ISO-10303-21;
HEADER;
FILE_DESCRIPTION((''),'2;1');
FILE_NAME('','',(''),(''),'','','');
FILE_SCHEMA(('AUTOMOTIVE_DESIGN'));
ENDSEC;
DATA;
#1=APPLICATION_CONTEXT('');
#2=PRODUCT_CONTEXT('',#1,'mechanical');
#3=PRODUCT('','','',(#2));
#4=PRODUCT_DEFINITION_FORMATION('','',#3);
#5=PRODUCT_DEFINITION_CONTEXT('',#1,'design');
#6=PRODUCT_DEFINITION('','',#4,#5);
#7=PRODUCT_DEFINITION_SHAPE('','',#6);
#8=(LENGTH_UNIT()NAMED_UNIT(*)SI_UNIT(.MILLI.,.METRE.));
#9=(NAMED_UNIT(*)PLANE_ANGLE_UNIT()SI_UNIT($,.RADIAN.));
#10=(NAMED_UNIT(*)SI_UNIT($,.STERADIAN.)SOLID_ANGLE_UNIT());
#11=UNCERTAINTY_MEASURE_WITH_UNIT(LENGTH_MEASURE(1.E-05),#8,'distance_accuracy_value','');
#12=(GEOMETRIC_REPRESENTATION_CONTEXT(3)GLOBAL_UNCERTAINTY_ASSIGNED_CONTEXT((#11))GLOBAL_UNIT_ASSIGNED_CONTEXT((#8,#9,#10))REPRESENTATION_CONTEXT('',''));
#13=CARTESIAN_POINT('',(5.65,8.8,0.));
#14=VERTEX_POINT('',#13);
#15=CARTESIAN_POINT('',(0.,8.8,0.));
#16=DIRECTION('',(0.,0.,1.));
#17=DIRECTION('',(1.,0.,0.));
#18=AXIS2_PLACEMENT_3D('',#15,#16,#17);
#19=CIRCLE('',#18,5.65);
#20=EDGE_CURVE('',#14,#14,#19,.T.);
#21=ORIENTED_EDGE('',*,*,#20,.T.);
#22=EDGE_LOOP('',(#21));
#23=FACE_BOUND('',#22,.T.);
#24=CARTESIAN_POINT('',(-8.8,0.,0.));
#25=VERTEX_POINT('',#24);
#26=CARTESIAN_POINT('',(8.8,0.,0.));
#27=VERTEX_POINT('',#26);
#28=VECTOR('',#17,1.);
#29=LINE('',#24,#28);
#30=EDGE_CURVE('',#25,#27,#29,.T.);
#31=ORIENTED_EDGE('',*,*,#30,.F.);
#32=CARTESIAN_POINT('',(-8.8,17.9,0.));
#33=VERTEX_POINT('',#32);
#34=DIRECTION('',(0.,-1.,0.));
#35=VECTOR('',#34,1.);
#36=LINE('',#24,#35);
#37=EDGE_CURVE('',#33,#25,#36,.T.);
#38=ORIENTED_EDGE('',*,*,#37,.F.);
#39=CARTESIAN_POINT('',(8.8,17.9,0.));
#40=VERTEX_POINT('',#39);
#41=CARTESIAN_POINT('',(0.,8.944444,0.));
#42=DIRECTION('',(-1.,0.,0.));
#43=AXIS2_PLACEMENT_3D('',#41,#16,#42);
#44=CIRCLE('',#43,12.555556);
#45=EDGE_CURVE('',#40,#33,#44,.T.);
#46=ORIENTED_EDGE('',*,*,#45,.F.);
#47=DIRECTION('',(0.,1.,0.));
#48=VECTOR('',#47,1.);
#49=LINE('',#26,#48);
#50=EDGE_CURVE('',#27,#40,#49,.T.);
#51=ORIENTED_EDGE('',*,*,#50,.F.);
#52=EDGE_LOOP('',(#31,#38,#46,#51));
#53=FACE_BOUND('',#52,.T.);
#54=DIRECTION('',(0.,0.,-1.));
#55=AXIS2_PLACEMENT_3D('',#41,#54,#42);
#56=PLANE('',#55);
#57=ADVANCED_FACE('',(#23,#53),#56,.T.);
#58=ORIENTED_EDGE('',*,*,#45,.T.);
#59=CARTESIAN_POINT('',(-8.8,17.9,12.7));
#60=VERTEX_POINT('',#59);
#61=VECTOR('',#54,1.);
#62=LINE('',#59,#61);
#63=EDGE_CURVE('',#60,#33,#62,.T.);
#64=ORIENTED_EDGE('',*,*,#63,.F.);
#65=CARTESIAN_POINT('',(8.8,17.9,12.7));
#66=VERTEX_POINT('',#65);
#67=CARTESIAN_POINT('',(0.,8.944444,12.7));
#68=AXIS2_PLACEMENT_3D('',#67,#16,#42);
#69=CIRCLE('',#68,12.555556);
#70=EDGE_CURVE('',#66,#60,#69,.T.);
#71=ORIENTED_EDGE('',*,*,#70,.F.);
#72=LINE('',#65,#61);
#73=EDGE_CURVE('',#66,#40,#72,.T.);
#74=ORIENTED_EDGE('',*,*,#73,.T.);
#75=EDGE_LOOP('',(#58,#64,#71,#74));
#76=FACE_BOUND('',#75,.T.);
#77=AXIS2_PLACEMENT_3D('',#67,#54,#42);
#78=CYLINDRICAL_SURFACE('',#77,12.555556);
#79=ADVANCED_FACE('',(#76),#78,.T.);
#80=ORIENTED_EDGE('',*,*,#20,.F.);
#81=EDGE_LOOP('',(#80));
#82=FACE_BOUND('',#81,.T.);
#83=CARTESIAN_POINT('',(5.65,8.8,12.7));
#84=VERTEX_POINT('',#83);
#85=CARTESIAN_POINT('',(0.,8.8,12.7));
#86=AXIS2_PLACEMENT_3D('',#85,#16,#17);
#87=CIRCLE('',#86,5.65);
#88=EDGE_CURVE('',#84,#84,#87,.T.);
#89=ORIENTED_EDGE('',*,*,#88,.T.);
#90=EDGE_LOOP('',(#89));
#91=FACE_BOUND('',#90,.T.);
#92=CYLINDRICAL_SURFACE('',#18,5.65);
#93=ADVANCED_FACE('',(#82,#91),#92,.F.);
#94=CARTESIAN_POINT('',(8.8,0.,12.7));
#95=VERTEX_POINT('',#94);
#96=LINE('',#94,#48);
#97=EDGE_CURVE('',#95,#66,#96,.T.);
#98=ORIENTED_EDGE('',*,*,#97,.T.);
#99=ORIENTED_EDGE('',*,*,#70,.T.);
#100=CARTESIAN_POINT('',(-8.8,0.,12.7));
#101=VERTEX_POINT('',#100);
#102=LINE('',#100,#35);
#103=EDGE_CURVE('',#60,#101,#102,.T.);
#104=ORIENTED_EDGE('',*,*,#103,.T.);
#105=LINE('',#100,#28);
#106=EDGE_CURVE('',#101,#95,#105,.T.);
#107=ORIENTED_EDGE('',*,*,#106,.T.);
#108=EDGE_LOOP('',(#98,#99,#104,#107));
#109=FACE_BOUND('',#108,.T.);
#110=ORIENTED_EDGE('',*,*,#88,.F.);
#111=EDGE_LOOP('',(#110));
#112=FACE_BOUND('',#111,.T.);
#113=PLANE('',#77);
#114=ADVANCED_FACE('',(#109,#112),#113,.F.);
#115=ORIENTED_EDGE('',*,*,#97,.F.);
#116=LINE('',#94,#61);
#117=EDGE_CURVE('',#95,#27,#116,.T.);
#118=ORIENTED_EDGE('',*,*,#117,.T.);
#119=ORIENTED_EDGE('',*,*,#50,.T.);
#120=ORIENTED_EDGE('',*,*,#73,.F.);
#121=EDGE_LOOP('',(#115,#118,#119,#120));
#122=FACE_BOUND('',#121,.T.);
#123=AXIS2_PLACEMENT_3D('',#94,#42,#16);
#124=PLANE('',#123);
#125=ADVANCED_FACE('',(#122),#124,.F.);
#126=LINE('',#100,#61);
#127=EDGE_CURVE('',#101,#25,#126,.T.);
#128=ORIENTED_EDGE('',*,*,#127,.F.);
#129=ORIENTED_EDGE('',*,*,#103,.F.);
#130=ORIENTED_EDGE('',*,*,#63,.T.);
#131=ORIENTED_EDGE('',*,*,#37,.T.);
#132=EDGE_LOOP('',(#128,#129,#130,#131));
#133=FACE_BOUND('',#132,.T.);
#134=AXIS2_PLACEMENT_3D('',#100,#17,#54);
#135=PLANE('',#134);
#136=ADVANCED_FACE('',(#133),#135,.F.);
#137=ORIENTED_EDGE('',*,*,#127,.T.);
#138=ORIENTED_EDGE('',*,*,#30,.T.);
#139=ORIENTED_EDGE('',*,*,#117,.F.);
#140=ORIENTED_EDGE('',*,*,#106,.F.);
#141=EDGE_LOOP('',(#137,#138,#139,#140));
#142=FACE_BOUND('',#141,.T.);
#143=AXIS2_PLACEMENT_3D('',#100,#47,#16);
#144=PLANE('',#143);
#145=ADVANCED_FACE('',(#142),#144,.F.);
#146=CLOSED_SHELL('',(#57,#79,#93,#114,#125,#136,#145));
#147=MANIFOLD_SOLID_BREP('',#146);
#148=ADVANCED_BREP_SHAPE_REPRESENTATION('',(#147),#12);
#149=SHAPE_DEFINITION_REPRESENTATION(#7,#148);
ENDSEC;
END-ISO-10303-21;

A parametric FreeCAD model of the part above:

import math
import FreeCAD as App
import Part
import Sketcher
from FreeCAD import Vector

doc = App.newDocument("Part")
body = doc.addObject("PartDesign::Body", "Body")

# Sketch on XY plane
sketch1 = body.newObject("Sketcher::SketchObject", "Sketch")
sketch1.AttachmentSupport = (doc.getObject("XY_Plane"), [""])
sketch1.MapMode = "FlatFace"
sketch1.addGeometry(Part.LineSegment(Vector(-8.8, 0, 0), Vector(8.8, 0, 0)), False)
sketch1.addGeometry(Part.LineSegment(Vector(8.8, 0, 0), Vector(8.8, 17.9, 0)), False)
sketch1.addGeometry(Part.ArcOfCircle(Part.Circle(Vector(0, 8.944444, 0), Vector(0, 0, 1), 12.555556), math.radians(45.501953), math.radians(134.498047)), False)
sketch1.addGeometry(Part.LineSegment(Vector(-8.8, 17.9, 0), Vector(-8.8, 0, 0)), False)
sketch1.addConstraint(Sketcher.Constraint("Coincident", 0, 2, 1, 1))
sketch1.addConstraint(Sketcher.Constraint("Coincident", 1, 2, 2, 1))
sketch1.addConstraint(Sketcher.Constraint("Coincident", 2, 2, 3, 1))
sketch1.addConstraint(Sketcher.Constraint("Coincident", 3, 2, 0, 1))
sketch1.addConstraint(Sketcher.Constraint("Horizontal", 0))
sketch1.addConstraint(Sketcher.Constraint("Vertical", 1))
sketch1.addConstraint(Sketcher.Constraint("Vertical", 3))
sketch1.addConstraint(Sketcher.Constraint("Symmetric", 0, 2, 3, 2, -1, 1))
sketch1.addConstraint(Sketcher.Constraint("PointOnObject", 2, 3, -2))
sketch1.addConstraint(Sketcher.Constraint("DistanceX", 0, 1, 0, 2, 17.6))
sketch1.addConstraint(Sketcher.Constraint("DistanceY", 1, 1, 1, 2, 17.9))
sketch1.addConstraint(Sketcher.Constraint("Radius", 2, 12.555556))
pad1 = body.newObject("PartDesign::Pad", "Pad")
pad1.Profile = sketch1
pad1.Length = 12.7

# Sketch on XY plane
sketch2 = body.newObject("Sketcher::SketchObject", "Sketch001")
sketch2.AttachmentSupport = (doc.getObject("XY_Plane"), [""])
sketch2.MapMode = "FlatFace"
sketch2.AttachmentOffset = App.Placement(Vector(0, 0, 12.7), App.Rotation())
sketch2.addGeometry(Part.Circle(Vector(0, 8.8, 0), Vector(0, 0, 1), 5.65), False)
sketch2.addConstraint(Sketcher.Constraint("PointOnObject", 0, 3, -2))
sketch2.addConstraint(Sketcher.Constraint("Diameter", 0, 11.3))
sketch2.addConstraint(Sketcher.Constraint("DistanceY", -1, 1, 0, 3, 8.8))
pocket1 = body.newObject("PartDesign::Pocket", "Pocket")
pocket1.Profile = sketch2
pocket1.Type = "ThroughAll"

doc.recompute()
